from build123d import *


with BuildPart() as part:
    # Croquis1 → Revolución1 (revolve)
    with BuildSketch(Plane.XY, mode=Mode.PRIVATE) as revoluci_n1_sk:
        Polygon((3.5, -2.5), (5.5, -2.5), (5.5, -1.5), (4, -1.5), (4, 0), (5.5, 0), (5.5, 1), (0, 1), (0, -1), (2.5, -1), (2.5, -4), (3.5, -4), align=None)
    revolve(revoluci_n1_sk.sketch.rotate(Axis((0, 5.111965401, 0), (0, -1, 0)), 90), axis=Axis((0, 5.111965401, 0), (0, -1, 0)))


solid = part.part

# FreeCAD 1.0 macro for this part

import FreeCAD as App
import Part
import Sketcher
from FreeCAD import Vector


def add_polygon(sketch, points):
    """Adds a closed chain of lines whose ends are joined by coincident constraints."""
    first, n = sketch.GeometryCount, len(points)
    for a, b in zip(points, points[1:] + points[:1]):
        sketch.addGeometry(Part.LineSegment(App.Vector(*a, 0), App.Vector(*b, 0)), False)
    for i in range(n):
        sketch.addConstraint(Sketcher.Constraint("Coincident", first + i, 2, first + (i + 1) % n, 1))

doc = App.newDocument("Part")
body = doc.addObject("PartDesign::Body", "Body")

sketch1 = body.newObject("Sketcher::SketchObject", "Sketch")
sketch1.AttachmentSupport = (doc.getObject("XY_Plane"), [""])
sketch1.MapMode = "FlatFace"
add_polygon(sketch1, [(3.5, -2.5), (5.5, -2.5), (5.5, -1.5), (4, -1.5), (4, 0), (5.5, 0), (5.5, 1), (0, 1), (0, -1), (2.5, -1), (2.5, -4), (3.5, -4)])
sketch1.addConstraint(Sketcher.Constraint("Horizontal", 0))
sketch1.addConstraint(Sketcher.Constraint("Vertical", 1))
sketch1.addConstraint(Sketcher.Constraint("Horizontal", 2))
sketch1.addConstraint(Sketcher.Constraint("Vertical", 3))
sketch1.addConstraint(Sketcher.Constraint("Horizontal", 4))
sketch1.addConstraint(Sketcher.Constraint("Vertical", 5))
sketch1.addConstraint(Sketcher.Constraint("Horizontal", 6))
sketch1.addConstraint(Sketcher.Constraint("Vertical", 7))
sketch1.addConstraint(Sketcher.Constraint("Horizontal", 8))
sketch1.addConstraint(Sketcher.Constraint("Vertical", 9))
sketch1.addConstraint(Sketcher.Constraint("Horizontal", 10))
sketch1.addConstraint(Sketcher.Constraint("Vertical", 11))
sketch1.addConstraint(Sketcher.Constraint("Symmetric", 6, 2, 7, 2, -1, 1))
sketch1.addConstraint(Sketcher.Constraint("PointOnObject", 3, 2, -1))
sketch1.addConstraint(Sketcher.Constraint("Vertical", 1, 2, 4, 2))
sketch1.addConstraint(Sketcher.Constraint("Equal", 10, 1))
sketch1.addConstraint(Sketcher.Constraint("Equal", 4, 3))
sketch1.addConstraint(Sketcher.Constraint("Equal", 1, 5))
sketch1.addConstraint(Sketcher.Constraint("Equal", 0, 7))
sketch1.addConstraint(Sketcher.Constraint("Equal", 3, 11))
sketch1.addConstraint(Sketcher.Constraint("DistanceX", 0, 1, 0, 2, 2.0))
sketch1.addConstraint(Sketcher.Constraint("DistanceY", 9, 2, 9, 1, 3.0))
sketch1.addConstraint(Sketcher.Constraint("DistanceX", 6, 2, 6, 1, 5.5))
revolution = body.newObject("PartDesign::Revolution", "Revolution")
revolution.Profile = sketch1
revolution.ReferenceAxis = (sketch1, ["V_Axis"])
revolution.Angle = 360

doc.recompute()
